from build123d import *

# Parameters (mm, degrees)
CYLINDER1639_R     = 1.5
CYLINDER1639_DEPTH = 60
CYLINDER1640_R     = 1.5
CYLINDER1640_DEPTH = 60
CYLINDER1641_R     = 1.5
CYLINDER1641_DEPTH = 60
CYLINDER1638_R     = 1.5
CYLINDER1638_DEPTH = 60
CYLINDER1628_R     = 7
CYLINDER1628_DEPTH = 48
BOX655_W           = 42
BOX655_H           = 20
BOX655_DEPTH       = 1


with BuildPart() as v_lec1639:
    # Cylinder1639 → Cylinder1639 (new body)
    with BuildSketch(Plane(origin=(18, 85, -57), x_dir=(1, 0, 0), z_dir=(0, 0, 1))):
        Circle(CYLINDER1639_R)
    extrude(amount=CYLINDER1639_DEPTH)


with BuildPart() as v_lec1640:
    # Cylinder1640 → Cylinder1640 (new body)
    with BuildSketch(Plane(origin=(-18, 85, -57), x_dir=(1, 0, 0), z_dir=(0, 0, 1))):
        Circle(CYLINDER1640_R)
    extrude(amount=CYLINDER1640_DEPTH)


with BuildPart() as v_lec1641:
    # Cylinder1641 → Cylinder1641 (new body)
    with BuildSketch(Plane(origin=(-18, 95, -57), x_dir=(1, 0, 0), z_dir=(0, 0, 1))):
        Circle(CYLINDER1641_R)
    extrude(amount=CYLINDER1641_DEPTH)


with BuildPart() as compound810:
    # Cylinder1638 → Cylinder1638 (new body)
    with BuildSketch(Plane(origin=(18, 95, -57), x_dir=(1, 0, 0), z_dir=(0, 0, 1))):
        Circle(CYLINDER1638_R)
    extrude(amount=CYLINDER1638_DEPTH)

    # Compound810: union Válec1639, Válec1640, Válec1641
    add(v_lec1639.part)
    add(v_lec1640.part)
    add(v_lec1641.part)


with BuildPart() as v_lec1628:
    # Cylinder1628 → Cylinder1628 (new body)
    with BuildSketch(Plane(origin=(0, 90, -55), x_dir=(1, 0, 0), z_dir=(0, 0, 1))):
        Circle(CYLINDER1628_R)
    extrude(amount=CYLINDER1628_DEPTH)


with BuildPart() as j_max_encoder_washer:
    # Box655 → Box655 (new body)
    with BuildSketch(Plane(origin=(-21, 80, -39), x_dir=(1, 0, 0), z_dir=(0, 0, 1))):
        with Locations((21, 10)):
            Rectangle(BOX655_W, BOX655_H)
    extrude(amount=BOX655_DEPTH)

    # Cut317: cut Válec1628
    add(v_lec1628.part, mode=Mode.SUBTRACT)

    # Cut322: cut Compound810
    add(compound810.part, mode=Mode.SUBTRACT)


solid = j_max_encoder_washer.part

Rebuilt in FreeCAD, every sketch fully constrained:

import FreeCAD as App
import Part
import Sketcher


def add_polygon(sketch, points):
    """Adds a closed chain of lines whose ends are joined by coincident constraints."""
    first, n = sketch.GeometryCount, len(points)
    for a, b in zip(points, points[1:] + points[:1]):
        sketch.addGeometry(Part.LineSegment(App.Vector(*a, 0), App.Vector(*b, 0)), False)
    for i in range(n):
        sketch.addConstraint(Sketcher.Constraint("Coincident", first + i, 2, first + (i + 1) % n, 1))

doc = App.newDocument("Part")
body = doc.addObject("PartDesign::Body", "Body")

sketch1 = body.newObject("Sketcher::SketchObject", "Sketch")
sketch1.AttachmentSupport = (doc.getObject("XY_Plane"), [""])
sketch1.MapMode = "FlatFace"
sketch1.AttachmentOffset = App.Placement(App.Vector(0, 0, -57), App.Rotation())
sketch1.addGeometry(Part.Circle(App.Vector(18, 85, 0), App.Vector(0, 0, 1), 1.5), False)
sketch1.addConstraint([
    Sketcher.Constraint("Diameter", 0, 3.0),
    Sketcher.Constraint("DistanceX", -1, 1, 0, 3, 18.0),
    Sketcher.Constraint("DistanceY", -1, 1, 0, 3, 85.0),
])
pad1 = body.newObject("PartDesign::Pad", "Pad")
pad1.Profile = sketch1
pad1.Length = 60
body2 = doc.addObject("PartDesign::Body", "Body001")

sketch2 = body2.newObject("Sketcher::SketchObject", "Sketch001")
sketch2.AttachmentSupport = (doc.getObject("XY_Plane001"), [""])
sketch2.MapMode = "FlatFace"
sketch2.AttachmentOffset = App.Placement(App.Vector(0, 0, -57), App.Rotation())
sketch2.addGeometry(Part.Circle(App.Vector(-18, 85, 0), App.Vector(0, 0, 1), 1.5), False)
sketch2.addConstraint([
    Sketcher.Constraint("Diameter", 0, 3.0),
    Sketcher.Constraint("DistanceX", 0, 3, -1, 1, 18.0),
    Sketcher.Constraint("DistanceY", -1, 1, 0, 3, 85.0),
])
pad2 = body2.newObject("PartDesign::Pad", "Pad001")
pad2.Profile = sketch2
pad2.Length = 60
body3 = doc.addObject("PartDesign::Body", "Body002")

sketch3 = body3.newObject("Sketcher::SketchObject", "Sketch002")
sketch3.AttachmentSupport = (doc.getObject("XY_Plane002"), [""])
sketch3.MapMode = "FlatFace"
sketch3.AttachmentOffset = App.Placement(App.Vector(0, 0, -57), App.Rotation())
sketch3.addGeometry(Part.Circle(App.Vector(-18, 95, 0), App.Vector(0, 0, 1), 1.5), False)
sketch3.addConstraint([
    Sketcher.Constraint("Diameter", 0, 3.0),
    Sketcher.Constraint("DistanceX", 0, 3, -1, 1, 18.0),
    Sketcher.Constraint("DistanceY", -1, 1, 0, 3, 95.0),
])
pad3 = body3.newObject("PartDesign::Pad", "Pad002")
pad3.Profile = sketch3
pad3.Length = 60
body4 = doc.addObject("PartDesign::Body", "Body003")
body4.AllowCompound = True

sketch4 = body4.newObject("Sketcher::SketchObject", "Sketch003")
sketch4.AttachmentSupport = (doc.getObject("XY_Plane003"), [""])
sketch4.MapMode = "FlatFace"
sketch4.AttachmentOffset = App.Placement(App.Vector(0, 0, -57), App.Rotation())
sketch4.addGeometry(Part.Circle(App.Vector(18, 95, 0), App.Vector(0, 0, 1), 1.5), False)
sketch4.addConstraint([
    Sketcher.Constraint("Diameter", 0, 3.0),
    Sketcher.Constraint("DistanceX", -1, 1, 0, 3, 18.0),
    Sketcher.Constraint("DistanceY", -1, 1, 0, 3, 95.0),
])
pad4 = body4.newObject("PartDesign::Pad", "Pad003")
pad4.Profile = sketch4
pad4.Length = 60
doc.recompute()

boolean = body4.newObject("PartDesign::Boolean", "Boolean")
boolean.Type = "Fuse"
boolean.addObjects([body])
doc.recompute()

boolean2 = body4.newObject("PartDesign::Boolean", "Boolean001")
boolean2.Type = "Fuse"
boolean2.addObjects([body2])
doc.recompute()

boolean3 = body4.newObject("PartDesign::Boolean", "Boolean002")
boolean3.Type = "Fuse"
boolean3.addObjects([body3])
body5 = doc.addObject("PartDesign::Body", "Body004")

sketch5 = body5.newObject("Sketcher::SketchObject", "Sketch004")
sketch5.AttachmentSupport = (doc.getObject("XY_Plane004"), [""])
sketch5.MapMode = "FlatFace"
sketch5.AttachmentOffset = App.Placement(App.Vector(0, 0, -55), App.Rotation())
sketch5.addGeometry(Part.Circle(App.Vector(0, 90, 0), App.Vector(0, 0, 1), 7), False)
sketch5.addConstraint([
    Sketcher.Constraint("PointOnObject", 0, 3, -2),
    Sketcher.Constraint("Diameter", 0, 14.0),
    Sketcher.Constraint("DistanceY", -1, 1, 0, 3, 90.0),
])
pad5 = body5.newObject("PartDesign::Pad", "Pad004")
pad5.Profile = sketch5
pad5.Length = 48
body6 = doc.addObject("PartDesign::Body", "Body005")

sketch6 = body6.newObject("Sketcher::SketchObject", "Sketch005")
sketch6.AttachmentSupport = (doc.getObject("XY_Plane005"), [""])
sketch6.MapMode = "FlatFace"
sketch6.AttachmentOffset = App.Placement(App.Vector(0, 0, -39), App.Rotation())
add_polygon(sketch6, [(-21, 100), (-21, 80), (21, 80), (21, 100)])
sketch6.addConstraint([
    Sketcher.Constraint("Vertical", 0),
    Sketcher.Constraint("Horizontal", 1),
    Sketcher.Constraint("Vertical", 2),
    Sketcher.Constraint("Horizontal", 3),
    Sketcher.Constraint("DistanceX", 1, 1, 1, 2, 42.0),
    Sketcher.Constraint("DistanceY", 0, 2, 0, 1, 20.0),
    Sketcher.Constraint("DistanceX", 0, 2, -1, 1, 21.0),
    Sketcher.Constraint("DistanceY", -1, 1, 0, 2, 80.0),
])
pad6 = body6.newObject("PartDesign::Pad", "Pad005")
pad6.Profile = sketch6
pad6.Length = 1
doc.recompute()

boolean4 = body6.newObject("PartDesign::Boolean", "Boolean003")
boolean4.Type = "Cut"
boolean4.addObjects([body5])
doc.recompute()

boolean5 = body6.newObject("PartDesign::Boolean", "Boolean004")
boolean5.Type = "Cut"
boolean5.addObjects([body4])

doc.recompute()
